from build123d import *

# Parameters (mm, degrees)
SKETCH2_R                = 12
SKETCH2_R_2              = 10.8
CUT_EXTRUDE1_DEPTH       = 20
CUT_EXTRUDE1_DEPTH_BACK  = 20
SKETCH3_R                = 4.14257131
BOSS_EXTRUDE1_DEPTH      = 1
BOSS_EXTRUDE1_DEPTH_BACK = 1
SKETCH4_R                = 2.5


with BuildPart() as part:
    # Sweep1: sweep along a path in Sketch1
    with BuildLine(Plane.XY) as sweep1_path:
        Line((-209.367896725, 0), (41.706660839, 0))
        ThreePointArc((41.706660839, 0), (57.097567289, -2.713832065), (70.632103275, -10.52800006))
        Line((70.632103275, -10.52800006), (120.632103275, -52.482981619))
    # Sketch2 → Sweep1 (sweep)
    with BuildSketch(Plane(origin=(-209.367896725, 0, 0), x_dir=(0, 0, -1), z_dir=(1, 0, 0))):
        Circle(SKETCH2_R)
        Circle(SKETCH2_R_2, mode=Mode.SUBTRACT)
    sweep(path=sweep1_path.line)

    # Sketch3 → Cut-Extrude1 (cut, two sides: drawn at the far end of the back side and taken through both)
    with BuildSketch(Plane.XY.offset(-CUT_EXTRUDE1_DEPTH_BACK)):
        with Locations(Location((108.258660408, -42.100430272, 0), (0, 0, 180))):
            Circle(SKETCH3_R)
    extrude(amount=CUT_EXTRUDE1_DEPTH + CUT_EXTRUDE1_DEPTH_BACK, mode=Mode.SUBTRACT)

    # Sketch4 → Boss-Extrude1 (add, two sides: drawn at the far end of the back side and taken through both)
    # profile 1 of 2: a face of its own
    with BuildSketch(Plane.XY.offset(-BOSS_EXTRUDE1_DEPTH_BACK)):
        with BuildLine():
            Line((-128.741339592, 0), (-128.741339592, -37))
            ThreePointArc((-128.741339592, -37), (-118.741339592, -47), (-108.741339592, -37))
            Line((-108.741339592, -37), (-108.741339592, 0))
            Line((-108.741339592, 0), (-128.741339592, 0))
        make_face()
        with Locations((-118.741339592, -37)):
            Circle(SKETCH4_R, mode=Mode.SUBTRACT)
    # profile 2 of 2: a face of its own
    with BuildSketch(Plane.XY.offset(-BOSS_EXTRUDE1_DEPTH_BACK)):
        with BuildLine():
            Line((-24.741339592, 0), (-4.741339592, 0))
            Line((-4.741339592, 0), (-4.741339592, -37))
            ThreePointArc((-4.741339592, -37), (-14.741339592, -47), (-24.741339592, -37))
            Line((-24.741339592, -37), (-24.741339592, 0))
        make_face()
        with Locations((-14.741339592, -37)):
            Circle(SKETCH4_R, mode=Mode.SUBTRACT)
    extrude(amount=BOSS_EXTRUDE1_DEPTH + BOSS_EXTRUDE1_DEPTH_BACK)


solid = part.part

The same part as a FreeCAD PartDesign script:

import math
import FreeCAD as App
import Part
import Sketcher

V = App.Vector
Q = App.Units.Quantity

doc = App.newDocument("Part")
params = doc.addObject("Spreadsheet::Sheet", "Params")
for row, (alias, value) in enumerate([
    ("sketch1_diameter", "24 mm"),
    ("sketch1_diameter2", "21.6 mm"),
    ("sketch2_radius", "45 mm"),
    ("sketch4_diameter", "5 mm"),
    ("sketch4_radius", "10 mm"),
    ("sketch4_height", "37 mm"),
    ("pad1_length", "1 mm"),
    ("pad1_length2", "1 mm"),
], start=1):
    params.set(f"A{row}", alias)
    params.set(f"B{row}", "=" + value)
    params.setAlias(f"B{row}", alias)

body = doc.addObject("PartDesign::Body", "Body")

sketch1 = body.newObject("Sketcher::SketchObject", "Sketch")
sketch1.AttachmentSupport = (doc.getObject("YZ_Plane"), [""])
sketch1.MapMode = "FlatFace"
sketch1.AttachmentOffset = App.Placement(V(0, 0, -209.367897), App.Rotation())
sketch1.addGeometry(Part.Circle(V(0, 0, 0), V(0, 0, 1), 12), False)
sketch1.addGeometry(Part.Circle(V(0, 0, 0), V(0, 0, 1), 11), False)
sketch1.addConstraint(Sketcher.Constraint("Coincident", 0, 3, -1, 1))
sketch1.addConstraint(Sketcher.Constraint("Coincident", 1, 3, -1, 1))
sketch1.addConstraint(Sketcher.Constraint("Diameter", 0, Q("24 mm")))
sketch1.addConstraint(Sketcher.Constraint("Diameter", 1, Q("21.6 mm")))
sketch1.setExpression("Constraints[2]", "Params.sketch1_diameter")
sketch1.setExpression("Constraints[3]", "Params.sketch1_diameter2")

sketch2 = body.newObject("Sketcher::SketchObject", "Sketch001")
sketch2.AttachmentSupport = (doc.getObject("XY_Plane"), [""])
sketch2.MapMode = "FlatFace"
sketch2.addGeometry(Part.LineSegment(V(-209, 0, 0), V(42, 0, 0)), False)
sketch2.addGeometry(Part.ArcOfCircle(Part.Circle(V(42, -45, 0), V(0, 0, 1), 45), math.radians(50), math.radians(90)), False)
sketch2.addGeometry(Part.LineSegment(V(71, -11, 0), V(121, -52, 0)), False)
sketch2.addConstraint(Sketcher.Constraint("Tangent", 0, 2, 1, 2))
sketch2.addConstraint(Sketcher.Constraint("Tangent", 1, 1, 2, 1))
sketch2.addConstraint(Sketcher.Constraint("Horizontal", 0))
sketch2.addConstraint(Sketcher.Constraint("PointOnObject", 0, 1, -1))
sketch2.addConstraint(Sketcher.Constraint("Radius", 1, Q("45 mm")))
sketch2.addConstraint(Sketcher.Constraint("Angle", 2, Q("-40 deg")))
sketch2.addConstraint(Sketcher.Constraint("DistanceX", 0, 1, 1, 1, Q("280 mm")))
sketch2.addConstraint(Sketcher.Constraint("DistanceX", 1, 1, 2, 2, Q("50 mm")))
sketch2.addConstraint(Sketcher.Constraint("DistanceX", -1, 1, 1, 3, Q("41.706661 mm")))
sketch2.setExpression("Constraints[4]", "Params.sketch2_radius")
doc.recompute()

additivepipe = body.newObject("PartDesign::AdditivePipe", "AdditivePipe")
additivepipe.Profile = sketch1
additivepipe.Spine = (sketch2, ["Edge1", "Edge2", "Edge3"])

sketch3 = body.newObject("Sketcher::SketchObject", "Sketch002")
sketch3.AttachmentSupport = (doc.getObject("XY_Plane"), [""])
sketch3.MapMode = "FlatFace"
sketch3.addGeometry(Part.Circle(V(108.3, -42.1, 0), V(0, 0, 1), 4.1), False)
sketch3.addConstraint(Sketcher.Constraint("Diameter", 0, Q("8.285143 mm")))
sketch3.addConstraint(Sketcher.Constraint("DistanceX", -1, 1, 0, 3, Q("108.25866 mm")))
sketch3.addConstraint(Sketcher.Constraint("DistanceY", 0, 3, -1, 1, Q("42.10043 mm")))
pocket1 = body.newObject("PartDesign::Pocket", "Pocket")
pocket1.Profile = sketch3
pocket1.Type = "ThroughAll"
pocket1.Midplane = True

sketch4 = body.newObject("Sketcher::SketchObject", "Sketch003")
sketch4.AttachmentSupport = (doc.getObject("XY_Plane"), [""])
sketch4.MapMode = "FlatFace"
sketch4.addGeometry(Part.LineSegment(V(-128.7, 0, 0), V(-128.7, -37, 0)), False)
sketch4.addGeometry(Part.ArcOfCircle(Part.Circle(V(-118.7, -37, 0), V(0, 0, 1), 10), math.radians(180), math.radians(360)), False)
sketch4.addGeometry(Part.LineSegment(V(-108.7, -37, 0), V(-108.7, 0, 0)), False)
sketch4.addGeometry(Part.LineSegment(V(-108.7, 0, 0), V(-128.7, 0, 0)), False)
sketch4.addGeometry(Part.Circle(V(-118.7, -37, 0), V(0, 0, 1), 2.5), False)
sketch4.addGeometry(Part.LineSegment(V(-4.7, 0, 0), V(-24.7, 0, 0)), False)
sketch4.addGeometry(Part.LineSegment(V(-24.7, 0, 0), V(-24.7, -37, 0)), False)
sketch4.addGeometry(Part.ArcOfCircle(Part.Circle(V(-14.7, -37, 0), V(0, 0, 1), 10), math.radians(180), math.radians(360)), False)
sketch4.addGeometry(Part.LineSegment(V(-4.7, -37, 0), V(-4.7, 0, 0)), False)
sketch4.addGeometry(Part.Circle(V(-14.7, -37, 0), V(0, 0, 1), 2.5), False)
sketch4.addConstraint(Sketcher.Constraint("Tangent", 0, 2, 1, 1))
sketch4.addConstraint(Sketcher.Constraint("Tangent", 1, 2, 2, 1))
sketch4.addConstraint(Sketcher.Constraint("Coincident", 2, 2, 3, 1))
sketch4.addConstraint(Sketcher.Constraint("Coincident", 3, 2, 0, 1))
sketch4.addConstraint(Sketcher.Constraint("Coincident", 5, 2, 6, 1))
sketch4.addConstraint(Sketcher.Constraint("Tangent", 6, 2, 7, 1))
sketch4.addConstraint(Sketcher.Constraint("Tangent", 7, 2, 8, 1))
sketch4.addConstraint(Sketcher.Constraint("Coincident", 8, 2, 5, 1))
sketch4.addConstraint(Sketcher.Constraint("Vertical", 0))
sketch4.addConstraint(Sketcher.Constraint("Vertical", 2))
sketch4.addConstraint(Sketcher.Constraint("Horizontal", 3))
sketch4.addConstraint(Sketcher.Constraint("Horizontal", 5))
sketch4.addConstraint(Sketcher.Constraint("Vertical", 6))
sketch4.addConstraint(Sketcher.Constraint("Vertical", 8))
sketch4.addConstraint(Sketcher.Constraint("Coincident", 4, 3, 1, 3))
sketch4.addConstraint(Sketcher.Constraint("Coincident", 9, 3, 7, 3))
sketch4.addConstraint(Sketcher.Constraint("Equal", 1, 7))
sketch4.addConstraint(Sketcher.Constraint("Equal", 4, 9))
sketch4.addConstraint(Sketcher.Constraint("PointOnObject", 2, 2, -1))
sketch4.addConstraint(Sketcher.Constraint("PointOnObject", 5, 2, -1))
sketch4.addConstraint(Sketcher.Constraint("Horizontal", 4, 3, 7, 3))
sketch4.addConstraint(Sketcher.Constraint("Diameter", 4, Q("5 mm")))
sketch4.addConstraint(Sketcher.Constraint("Radius", 1, Q("10 mm")))
sketch4.addConstraint(Sketcher.Constraint("DistanceY", 0, 2, 0, 1, Q("37 mm")))
sketch4.addConstraint(Sketcher.Constraint("DistanceX", 1, 3, 7, 3, Q("104 mm")))
sketch4.addConstraint(Sketcher.Constraint("DistanceX", 1, 3, -1, 1, Q("118.74134 mm")))
sketch4.setExpression("Constraints[21]", "Params.sketch4_diameter")
sketch4.setExpression("Constraints[22]", "Params.sketch4_radius")
sketch4.setExpression("Constraints[23]", "Params.sketch4_height")
pad1 = body.newObject("PartDesign::Pad", "Pad")
pad1.Profile = sketch4
pad1.Type = "TwoLengths"
pad1.setExpression("Length", "Params.pad1_length")
pad1.setExpression("Length2", "Params.pad1_length2")

doc.recompute()
